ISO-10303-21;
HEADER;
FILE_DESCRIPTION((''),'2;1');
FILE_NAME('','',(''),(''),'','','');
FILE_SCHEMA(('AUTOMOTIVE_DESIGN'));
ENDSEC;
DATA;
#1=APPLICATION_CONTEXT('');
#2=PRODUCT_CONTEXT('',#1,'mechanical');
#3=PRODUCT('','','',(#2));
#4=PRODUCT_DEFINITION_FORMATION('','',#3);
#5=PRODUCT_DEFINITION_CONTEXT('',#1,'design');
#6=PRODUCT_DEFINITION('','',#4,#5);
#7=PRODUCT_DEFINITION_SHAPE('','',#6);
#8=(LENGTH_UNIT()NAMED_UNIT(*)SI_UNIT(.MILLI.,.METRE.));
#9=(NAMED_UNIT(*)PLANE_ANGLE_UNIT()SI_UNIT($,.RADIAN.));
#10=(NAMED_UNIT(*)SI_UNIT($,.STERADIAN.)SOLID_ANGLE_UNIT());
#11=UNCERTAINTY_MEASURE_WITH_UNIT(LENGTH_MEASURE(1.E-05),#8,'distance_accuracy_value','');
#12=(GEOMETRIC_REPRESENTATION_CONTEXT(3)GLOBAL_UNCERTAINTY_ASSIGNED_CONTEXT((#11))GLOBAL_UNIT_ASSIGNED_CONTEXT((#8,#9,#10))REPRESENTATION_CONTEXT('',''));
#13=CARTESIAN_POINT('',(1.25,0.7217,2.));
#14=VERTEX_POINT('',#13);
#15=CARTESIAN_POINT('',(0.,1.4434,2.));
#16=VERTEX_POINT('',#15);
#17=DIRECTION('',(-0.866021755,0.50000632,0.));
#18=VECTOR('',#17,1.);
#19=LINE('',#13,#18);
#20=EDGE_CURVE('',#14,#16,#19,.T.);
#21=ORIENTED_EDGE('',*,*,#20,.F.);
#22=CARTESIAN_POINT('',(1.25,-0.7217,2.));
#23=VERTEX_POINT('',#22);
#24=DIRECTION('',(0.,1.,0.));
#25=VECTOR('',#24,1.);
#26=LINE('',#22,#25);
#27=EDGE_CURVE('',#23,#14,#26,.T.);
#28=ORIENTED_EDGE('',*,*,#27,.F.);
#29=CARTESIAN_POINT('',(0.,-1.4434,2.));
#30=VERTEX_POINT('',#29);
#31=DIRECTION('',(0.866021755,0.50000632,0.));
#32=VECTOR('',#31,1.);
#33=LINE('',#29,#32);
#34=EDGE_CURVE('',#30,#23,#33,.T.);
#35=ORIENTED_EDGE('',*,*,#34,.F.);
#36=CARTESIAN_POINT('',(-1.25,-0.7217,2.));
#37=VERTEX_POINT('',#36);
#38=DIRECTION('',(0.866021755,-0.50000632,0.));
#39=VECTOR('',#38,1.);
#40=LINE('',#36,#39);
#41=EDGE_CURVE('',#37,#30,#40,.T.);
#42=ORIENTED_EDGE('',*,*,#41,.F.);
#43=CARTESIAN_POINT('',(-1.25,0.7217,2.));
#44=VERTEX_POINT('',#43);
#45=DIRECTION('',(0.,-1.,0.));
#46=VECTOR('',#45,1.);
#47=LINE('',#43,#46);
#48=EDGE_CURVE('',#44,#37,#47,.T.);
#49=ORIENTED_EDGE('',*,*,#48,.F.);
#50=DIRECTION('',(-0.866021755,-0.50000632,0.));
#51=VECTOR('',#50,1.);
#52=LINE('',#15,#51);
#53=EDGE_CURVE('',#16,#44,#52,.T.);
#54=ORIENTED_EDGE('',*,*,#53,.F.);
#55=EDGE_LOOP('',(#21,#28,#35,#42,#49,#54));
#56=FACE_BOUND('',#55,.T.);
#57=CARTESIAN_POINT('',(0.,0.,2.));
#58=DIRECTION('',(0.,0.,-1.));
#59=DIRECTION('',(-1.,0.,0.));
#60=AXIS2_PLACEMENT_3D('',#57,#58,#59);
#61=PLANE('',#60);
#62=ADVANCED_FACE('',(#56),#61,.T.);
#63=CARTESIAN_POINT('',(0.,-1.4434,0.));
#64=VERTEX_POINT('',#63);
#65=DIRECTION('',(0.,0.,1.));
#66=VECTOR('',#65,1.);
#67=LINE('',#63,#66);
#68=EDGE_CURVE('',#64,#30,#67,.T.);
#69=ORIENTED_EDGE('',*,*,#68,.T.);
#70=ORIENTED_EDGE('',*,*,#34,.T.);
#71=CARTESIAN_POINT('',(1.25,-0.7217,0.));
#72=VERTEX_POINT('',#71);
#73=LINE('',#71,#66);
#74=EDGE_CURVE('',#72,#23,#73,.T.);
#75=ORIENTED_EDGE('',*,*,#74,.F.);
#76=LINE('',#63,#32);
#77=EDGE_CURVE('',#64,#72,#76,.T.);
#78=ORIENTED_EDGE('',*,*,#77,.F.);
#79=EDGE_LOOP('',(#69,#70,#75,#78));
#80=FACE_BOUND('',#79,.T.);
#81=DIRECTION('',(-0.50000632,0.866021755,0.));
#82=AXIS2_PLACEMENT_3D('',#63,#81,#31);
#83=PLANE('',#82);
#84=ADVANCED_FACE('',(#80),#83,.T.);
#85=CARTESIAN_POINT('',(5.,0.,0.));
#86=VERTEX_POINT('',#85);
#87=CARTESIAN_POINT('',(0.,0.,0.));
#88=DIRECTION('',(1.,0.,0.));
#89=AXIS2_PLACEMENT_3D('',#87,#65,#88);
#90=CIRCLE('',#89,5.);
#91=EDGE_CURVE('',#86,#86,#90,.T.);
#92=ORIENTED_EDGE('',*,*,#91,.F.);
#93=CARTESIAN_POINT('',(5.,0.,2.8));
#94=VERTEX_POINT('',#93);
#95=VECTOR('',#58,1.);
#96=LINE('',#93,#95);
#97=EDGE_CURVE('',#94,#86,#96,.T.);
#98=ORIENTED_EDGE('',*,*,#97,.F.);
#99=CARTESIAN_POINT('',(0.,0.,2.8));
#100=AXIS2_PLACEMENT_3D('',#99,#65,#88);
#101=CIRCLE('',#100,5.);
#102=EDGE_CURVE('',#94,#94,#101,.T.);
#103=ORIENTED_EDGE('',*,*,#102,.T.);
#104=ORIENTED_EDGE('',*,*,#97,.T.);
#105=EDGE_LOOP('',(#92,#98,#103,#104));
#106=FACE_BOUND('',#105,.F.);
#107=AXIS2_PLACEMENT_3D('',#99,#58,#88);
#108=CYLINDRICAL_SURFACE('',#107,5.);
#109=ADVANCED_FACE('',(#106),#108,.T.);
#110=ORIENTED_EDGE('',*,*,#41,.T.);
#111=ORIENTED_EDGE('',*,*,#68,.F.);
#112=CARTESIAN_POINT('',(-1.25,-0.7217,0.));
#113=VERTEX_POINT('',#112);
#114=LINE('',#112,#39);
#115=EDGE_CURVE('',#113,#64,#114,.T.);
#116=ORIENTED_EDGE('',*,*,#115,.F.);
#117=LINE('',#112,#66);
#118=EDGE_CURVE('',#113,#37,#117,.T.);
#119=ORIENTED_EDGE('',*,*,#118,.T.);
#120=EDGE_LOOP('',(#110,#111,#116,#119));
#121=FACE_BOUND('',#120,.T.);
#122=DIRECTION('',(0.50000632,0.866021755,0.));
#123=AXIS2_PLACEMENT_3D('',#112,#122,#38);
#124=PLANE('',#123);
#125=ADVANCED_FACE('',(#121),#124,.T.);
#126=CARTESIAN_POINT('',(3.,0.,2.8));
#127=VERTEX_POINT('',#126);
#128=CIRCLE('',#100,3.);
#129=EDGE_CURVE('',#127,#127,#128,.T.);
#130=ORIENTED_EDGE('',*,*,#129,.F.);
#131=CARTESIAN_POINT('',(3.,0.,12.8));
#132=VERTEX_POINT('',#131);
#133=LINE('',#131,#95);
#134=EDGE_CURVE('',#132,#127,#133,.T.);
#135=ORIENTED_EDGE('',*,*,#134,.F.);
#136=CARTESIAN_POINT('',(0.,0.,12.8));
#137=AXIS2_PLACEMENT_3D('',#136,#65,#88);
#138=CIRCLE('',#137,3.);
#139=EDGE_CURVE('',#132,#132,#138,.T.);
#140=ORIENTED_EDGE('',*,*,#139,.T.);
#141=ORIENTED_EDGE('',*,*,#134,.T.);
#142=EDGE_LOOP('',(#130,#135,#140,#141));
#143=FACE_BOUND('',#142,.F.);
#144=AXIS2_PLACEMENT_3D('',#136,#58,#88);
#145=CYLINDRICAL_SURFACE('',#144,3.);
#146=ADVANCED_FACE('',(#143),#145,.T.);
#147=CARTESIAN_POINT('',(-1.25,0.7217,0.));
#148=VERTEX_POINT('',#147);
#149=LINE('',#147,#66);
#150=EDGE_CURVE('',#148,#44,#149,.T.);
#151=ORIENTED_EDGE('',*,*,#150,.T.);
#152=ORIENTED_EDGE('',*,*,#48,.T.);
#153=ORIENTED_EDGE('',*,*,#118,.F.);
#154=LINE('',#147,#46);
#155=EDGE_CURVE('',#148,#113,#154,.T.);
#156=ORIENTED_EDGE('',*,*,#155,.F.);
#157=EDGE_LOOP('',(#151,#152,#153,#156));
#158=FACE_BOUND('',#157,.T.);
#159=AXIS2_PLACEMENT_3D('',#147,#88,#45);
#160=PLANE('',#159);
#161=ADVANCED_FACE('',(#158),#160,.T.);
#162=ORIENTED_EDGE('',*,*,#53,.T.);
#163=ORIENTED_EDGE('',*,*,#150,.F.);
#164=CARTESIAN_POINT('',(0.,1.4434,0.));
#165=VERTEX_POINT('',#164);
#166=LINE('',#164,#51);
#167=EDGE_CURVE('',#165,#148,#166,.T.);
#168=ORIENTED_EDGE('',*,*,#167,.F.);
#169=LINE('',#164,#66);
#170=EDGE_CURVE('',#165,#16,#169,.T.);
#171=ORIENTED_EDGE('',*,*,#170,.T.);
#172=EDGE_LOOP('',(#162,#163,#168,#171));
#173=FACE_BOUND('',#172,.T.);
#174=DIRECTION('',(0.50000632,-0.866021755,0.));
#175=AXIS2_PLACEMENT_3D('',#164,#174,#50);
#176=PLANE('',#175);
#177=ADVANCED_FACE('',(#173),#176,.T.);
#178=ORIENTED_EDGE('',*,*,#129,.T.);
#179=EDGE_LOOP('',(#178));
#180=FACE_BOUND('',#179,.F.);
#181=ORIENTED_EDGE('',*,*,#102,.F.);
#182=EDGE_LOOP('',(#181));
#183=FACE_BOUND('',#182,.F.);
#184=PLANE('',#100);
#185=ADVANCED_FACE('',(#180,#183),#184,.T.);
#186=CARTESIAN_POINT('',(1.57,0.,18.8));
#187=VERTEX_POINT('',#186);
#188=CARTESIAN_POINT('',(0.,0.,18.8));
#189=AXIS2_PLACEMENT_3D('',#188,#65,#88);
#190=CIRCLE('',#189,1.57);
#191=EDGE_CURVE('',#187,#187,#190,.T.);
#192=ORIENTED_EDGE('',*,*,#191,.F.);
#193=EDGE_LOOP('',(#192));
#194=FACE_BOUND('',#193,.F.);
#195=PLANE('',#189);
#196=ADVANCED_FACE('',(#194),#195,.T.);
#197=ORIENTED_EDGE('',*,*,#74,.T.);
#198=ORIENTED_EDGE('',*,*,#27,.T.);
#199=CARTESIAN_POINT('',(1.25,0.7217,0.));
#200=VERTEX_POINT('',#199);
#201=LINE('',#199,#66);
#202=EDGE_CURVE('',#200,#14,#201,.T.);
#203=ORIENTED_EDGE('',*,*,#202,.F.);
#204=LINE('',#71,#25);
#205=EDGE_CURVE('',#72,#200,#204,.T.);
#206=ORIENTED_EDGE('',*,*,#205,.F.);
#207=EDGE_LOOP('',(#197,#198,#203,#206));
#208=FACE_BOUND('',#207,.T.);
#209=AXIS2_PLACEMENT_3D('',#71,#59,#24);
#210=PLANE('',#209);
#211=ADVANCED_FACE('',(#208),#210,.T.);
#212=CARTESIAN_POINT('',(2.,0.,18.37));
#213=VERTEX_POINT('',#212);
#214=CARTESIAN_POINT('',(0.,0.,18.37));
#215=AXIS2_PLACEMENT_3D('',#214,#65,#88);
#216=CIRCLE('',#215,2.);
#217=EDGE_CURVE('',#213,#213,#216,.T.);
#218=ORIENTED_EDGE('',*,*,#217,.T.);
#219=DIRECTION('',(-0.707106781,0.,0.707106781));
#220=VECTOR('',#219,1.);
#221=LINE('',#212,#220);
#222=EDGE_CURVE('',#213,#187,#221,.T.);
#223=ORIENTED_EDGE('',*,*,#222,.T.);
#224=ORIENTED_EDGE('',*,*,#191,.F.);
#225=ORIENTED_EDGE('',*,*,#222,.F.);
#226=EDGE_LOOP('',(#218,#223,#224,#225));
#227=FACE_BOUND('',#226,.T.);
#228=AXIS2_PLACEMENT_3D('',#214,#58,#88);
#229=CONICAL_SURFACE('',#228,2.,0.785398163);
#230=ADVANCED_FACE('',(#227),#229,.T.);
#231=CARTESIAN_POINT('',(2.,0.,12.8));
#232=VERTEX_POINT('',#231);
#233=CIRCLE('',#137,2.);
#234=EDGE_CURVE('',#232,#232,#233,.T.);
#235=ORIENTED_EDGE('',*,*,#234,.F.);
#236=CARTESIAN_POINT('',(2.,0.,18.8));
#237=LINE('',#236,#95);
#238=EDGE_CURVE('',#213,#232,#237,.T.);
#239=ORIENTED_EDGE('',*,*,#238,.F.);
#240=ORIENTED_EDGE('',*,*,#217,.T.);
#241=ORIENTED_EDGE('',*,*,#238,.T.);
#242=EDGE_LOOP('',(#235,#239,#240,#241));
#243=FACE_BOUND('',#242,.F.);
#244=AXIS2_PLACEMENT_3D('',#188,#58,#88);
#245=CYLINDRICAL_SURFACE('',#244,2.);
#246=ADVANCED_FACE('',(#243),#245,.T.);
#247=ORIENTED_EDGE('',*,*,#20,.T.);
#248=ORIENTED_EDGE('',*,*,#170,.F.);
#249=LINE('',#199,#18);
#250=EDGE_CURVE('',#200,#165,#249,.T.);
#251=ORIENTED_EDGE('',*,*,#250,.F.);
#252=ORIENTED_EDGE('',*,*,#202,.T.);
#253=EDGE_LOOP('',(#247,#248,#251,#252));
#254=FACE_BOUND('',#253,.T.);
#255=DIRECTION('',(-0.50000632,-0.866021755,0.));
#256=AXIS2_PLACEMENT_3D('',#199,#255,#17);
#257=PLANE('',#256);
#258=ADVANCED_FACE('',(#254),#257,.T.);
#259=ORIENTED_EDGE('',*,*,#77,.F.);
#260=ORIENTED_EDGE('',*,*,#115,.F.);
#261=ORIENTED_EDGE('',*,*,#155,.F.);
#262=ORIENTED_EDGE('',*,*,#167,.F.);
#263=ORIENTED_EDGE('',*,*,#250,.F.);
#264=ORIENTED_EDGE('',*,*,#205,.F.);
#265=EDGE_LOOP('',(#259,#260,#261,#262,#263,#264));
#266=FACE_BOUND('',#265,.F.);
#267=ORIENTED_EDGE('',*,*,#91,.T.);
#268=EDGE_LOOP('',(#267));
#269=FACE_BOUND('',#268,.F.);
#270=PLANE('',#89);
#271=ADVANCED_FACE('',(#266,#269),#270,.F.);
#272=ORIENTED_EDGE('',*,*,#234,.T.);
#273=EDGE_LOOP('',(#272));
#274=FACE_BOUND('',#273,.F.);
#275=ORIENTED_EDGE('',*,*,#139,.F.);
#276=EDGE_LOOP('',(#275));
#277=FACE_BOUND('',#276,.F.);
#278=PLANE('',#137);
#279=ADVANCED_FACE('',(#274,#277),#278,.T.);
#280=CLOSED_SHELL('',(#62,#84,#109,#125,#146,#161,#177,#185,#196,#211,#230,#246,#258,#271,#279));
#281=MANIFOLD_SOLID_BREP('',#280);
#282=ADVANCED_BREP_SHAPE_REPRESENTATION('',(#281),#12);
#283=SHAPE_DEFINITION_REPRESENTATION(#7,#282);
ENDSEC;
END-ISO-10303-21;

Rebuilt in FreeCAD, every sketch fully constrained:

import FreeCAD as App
import Part
import Sketcher
from FreeCAD import Vector
Q = App.Units.Quantity


def edges_at(feature, points):
    """Names of the edges that pass closest to the given points."""
    edges = feature.Shape.Edges
    near = lambda p: min(range(len(edges)), key=lambda i: edges[i].distToShape(Part.Vertex(*p))[0])
    return sorted({f"Edge{near(p) + 1}" for p in points})

doc = App.newDocument("Part")
params = doc.addObject("Spreadsheet::Sheet", "Params")
for row, (alias, value) in enumerate([
    ("sketch1_height", "6 mm"),
    ("sketch1_height2", "10 mm"),
    ("sketch1_height3", "2.8 mm"),
    ("sketch1_width", "5 mm"),
    ("sketch1_width2", "2 mm"),
    ("revolution_angle", "360 deg"),
    ("pocket1_length", "2 mm"),
    ("chamfer_size", "0.43 mm"),
], start=1):
    params.set(f"A{row}", alias)
    params.set(f"B{row}", "=" + value)
    params.setAlias(f"B{row}", alias)

body = doc.addObject("PartDesign::Body", "Body")

sketch1 = body.newObject("Sketcher::SketchObject", "Sketch")
sketch1.AttachmentSupport = (doc.getObject("XZ_Plane"), [""])
sketch1.MapMode = "FlatFace"
sketch1.addGeometry(Part.LineSegment(Vector(5, 0, 0), Vector(0, 0, 0)), False)
sketch1.addGeometry(Part.LineSegment(Vector(0, 0, 0), Vector(0, 18.8, 0)), False)
sketch1.addGeometry(Part.LineSegment(Vector(0, 18.8, 0), Vector(2, 18.8, 0)), False)
sketch1.addGeometry(Part.LineSegment(Vector(2, 18.8, 0), Vector(2, 12.8, 0)), False)
sketch1.addGeometry(Part.LineSegment(Vector(2, 12.8, 0), Vector(3, 12.8, 0)), False)
sketch1.addGeometry(Part.LineSegment(Vector(3, 12.8, 0), Vector(3, 2.8, 0)), False)
sketch1.addGeometry(Part.LineSegment(Vector(3, 2.8, 0), Vector(5, 2.8, 0)), False)
sketch1.addGeometry(Part.LineSegment(Vector(5, 2.8, 0), Vector(5, 0, 0)), False)
sketch1.addConstraint(Sketcher.Constraint("Coincident", 0, 2, 1, 1))
sketch1.addConstraint(Sketcher.Constraint("Coincident", 1, 2, 2, 1))
sketch1.addConstraint(Sketcher.Constraint("Coincident", 2, 2, 3, 1))
sketch1.addConstraint(Sketcher.Constraint("Coincident", 3, 2, 4, 1))
sketch1.addConstraint(Sketcher.Constraint("Coincident", 4, 2, 5, 1))
sketch1.addConstraint(Sketcher.Constraint("Coincident", 5, 2, 6, 1))
sketch1.addConstraint(Sketcher.Constraint("Coincident", 6, 2, 7, 1))
sketch1.addConstraint(Sketcher.Constraint("Coincident", 7, 2, 0, 1))
sketch1.addConstraint(Sketcher.Constraint("Horizontal", 0))
sketch1.addConstraint(Sketcher.Constraint("Vertical", 1))
sketch1.addConstraint(Sketcher.Constraint("Horizontal", 2))
sketch1.addConstraint(Sketcher.Constraint("Vertical", 3))
sketch1.addConstraint(Sketcher.Constraint("Horizontal", 4))
sketch1.addConstraint(Sketcher.Constraint("Vertical", 5))
sketch1.addConstraint(Sketcher.Constraint("Horizontal", 6))
sketch1.addConstraint(Sketcher.Constraint("Vertical", 7))
sketch1.addConstraint(Sketcher.Constraint("Coincident", 0, 2, -1, 1))
sketch1.addConstraint(Sketcher.Constraint("Equal", 2, 6))
sketch1.addConstraint(Sketcher.Constraint("DistanceY", 3, 2, 3, 1, Q("6 mm")))
sketch1.addConstraint(Sketcher.Constraint("DistanceY", 5, 2, 5, 1, Q("10 mm")))
sketch1.addConstraint(Sketcher.Constraint("DistanceY", 7, 2, 7, 1, Q("2.8 mm")))
sketch1.addConstraint(Sketcher.Constraint("DistanceX", 0, 2, 0, 1, Q("5 mm")))
sketch1.addConstraint(Sketcher.Constraint("DistanceX", 2, 1, 2, 2, Q("2 mm")))
sketch1.setExpression("Constraints[18]", "Params.sketch1_height")
sketch1.setExpression("Constraints[19]", "Params.sketch1_height2")
sketch1.setExpression("Constraints[20]", "Params.sketch1_height3")
sketch1.setExpression("Constraints[21]", "Params.sketch1_width")
sketch1.setExpression("Constraints[22]", "Params.sketch1_width2")
revolution = body.newObject("PartDesign::Revolution", "Revolution")
revolution.Profile = sketch1
revolution.ReferenceAxis = (sketch1, ["V_Axis"])
revolution.setExpression("Angle", "Params.revolution_angle")

sketch2 = body.newObject("Sketcher::SketchObject", "Sketch001")
sketch2.AttachmentSupport = (doc.getObject("XY_Plane"), [""])
sketch2.MapMode = "FlatFace"
sketch2.addGeometry(Part.LineSegment(Vector(-1.2, 0.7, 0), Vector(0, 1.4, 0)), False)
sketch2.addGeometry(Part.LineSegment(Vector(0, 1.4, 0), Vector(1.2, 0.7, 0)), False)
sketch2.addGeometry(Part.LineSegment(Vector(1.2, 0.7, 0), Vector(1.2, -0.7, 0)), False)
sketch2.addGeometry(Part.LineSegment(Vector(1.2, -0.7, 0), Vector(0, -1.4, 0)), False)
sketch2.addGeometry(Part.LineSegment(Vector(0, -1.4, 0), Vector(-1.2, -0.7, 0)), False)
sketch2.addGeometry(Part.LineSegment(Vector(-1.2, -0.7, 0), Vector(-1.2, 0.7, 0)), False)
sketch2.addConstraint(Sketcher.Constraint("Coincident", 0, 2, 1, 1))
sketch2.addConstraint(Sketcher.Constraint("Coincident", 1, 2, 2, 1))
sketch2.addConstraint(Sketcher.Constraint("Coincident", 2, 2, 3, 1))
sketch2.addConstraint(Sketcher.Constraint("Coincident", 3, 2, 4, 1))
sketch2.addConstraint(Sketcher.Constraint("Coincident", 4, 2, 5, 1))
sketch2.addConstraint(Sketcher.Constraint("Coincident", 5, 2, 0, 1))
sketch2.addConstraint(Sketcher.Constraint("Vertical", 2))
sketch2.addConstraint(Sketcher.Constraint("Vertical", 5))
sketch2.addConstraint(Sketcher.Constraint("Symmetric", 0, 2, 3, 2, -1, 1))
sketch2.addConstraint(Sketcher.Constraint("Symmetric", 1, 2, 4, 2, -1, 1))
sketch2.addConstraint(Sketcher.Constraint("PointOnObject", 0, 2, -2))
sketch2.addConstraint(Sketcher.Constraint("Parallel", 0, 3))
sketch2.addConstraint(Sketcher.Constraint("Horizontal", 2, 2, 4, 2))
sketch2.addConstraint(Sketcher.Constraint("DistanceX", 4, 2, 2, 2, Q("2.5 mm")))
sketch2.addConstraint(Sketcher.Constraint("Angle", 0, Q("30.0004 deg")))
sketch2.addConstraint(Sketcher.Constraint("DistanceY", 2, 2, 2, 1, Q("1.4434 mm")))
pocket1 = body.newObject("PartDesign::Pocket", "Pocket")
pocket1.Profile = sketch2
pocket1.setExpression("Length", "Params.pocket1_length")
pocket1.Reversed = True
doc.recompute()

chamfer = body.newObject("PartDesign::Chamfer", "Chamfer")
chamfer.Base = (pocket1, edges_at(pocket1, [(-2, 0, 18.8)]))
chamfer.setExpression("Size", "Params.chamfer_size")

doc.recompute()
